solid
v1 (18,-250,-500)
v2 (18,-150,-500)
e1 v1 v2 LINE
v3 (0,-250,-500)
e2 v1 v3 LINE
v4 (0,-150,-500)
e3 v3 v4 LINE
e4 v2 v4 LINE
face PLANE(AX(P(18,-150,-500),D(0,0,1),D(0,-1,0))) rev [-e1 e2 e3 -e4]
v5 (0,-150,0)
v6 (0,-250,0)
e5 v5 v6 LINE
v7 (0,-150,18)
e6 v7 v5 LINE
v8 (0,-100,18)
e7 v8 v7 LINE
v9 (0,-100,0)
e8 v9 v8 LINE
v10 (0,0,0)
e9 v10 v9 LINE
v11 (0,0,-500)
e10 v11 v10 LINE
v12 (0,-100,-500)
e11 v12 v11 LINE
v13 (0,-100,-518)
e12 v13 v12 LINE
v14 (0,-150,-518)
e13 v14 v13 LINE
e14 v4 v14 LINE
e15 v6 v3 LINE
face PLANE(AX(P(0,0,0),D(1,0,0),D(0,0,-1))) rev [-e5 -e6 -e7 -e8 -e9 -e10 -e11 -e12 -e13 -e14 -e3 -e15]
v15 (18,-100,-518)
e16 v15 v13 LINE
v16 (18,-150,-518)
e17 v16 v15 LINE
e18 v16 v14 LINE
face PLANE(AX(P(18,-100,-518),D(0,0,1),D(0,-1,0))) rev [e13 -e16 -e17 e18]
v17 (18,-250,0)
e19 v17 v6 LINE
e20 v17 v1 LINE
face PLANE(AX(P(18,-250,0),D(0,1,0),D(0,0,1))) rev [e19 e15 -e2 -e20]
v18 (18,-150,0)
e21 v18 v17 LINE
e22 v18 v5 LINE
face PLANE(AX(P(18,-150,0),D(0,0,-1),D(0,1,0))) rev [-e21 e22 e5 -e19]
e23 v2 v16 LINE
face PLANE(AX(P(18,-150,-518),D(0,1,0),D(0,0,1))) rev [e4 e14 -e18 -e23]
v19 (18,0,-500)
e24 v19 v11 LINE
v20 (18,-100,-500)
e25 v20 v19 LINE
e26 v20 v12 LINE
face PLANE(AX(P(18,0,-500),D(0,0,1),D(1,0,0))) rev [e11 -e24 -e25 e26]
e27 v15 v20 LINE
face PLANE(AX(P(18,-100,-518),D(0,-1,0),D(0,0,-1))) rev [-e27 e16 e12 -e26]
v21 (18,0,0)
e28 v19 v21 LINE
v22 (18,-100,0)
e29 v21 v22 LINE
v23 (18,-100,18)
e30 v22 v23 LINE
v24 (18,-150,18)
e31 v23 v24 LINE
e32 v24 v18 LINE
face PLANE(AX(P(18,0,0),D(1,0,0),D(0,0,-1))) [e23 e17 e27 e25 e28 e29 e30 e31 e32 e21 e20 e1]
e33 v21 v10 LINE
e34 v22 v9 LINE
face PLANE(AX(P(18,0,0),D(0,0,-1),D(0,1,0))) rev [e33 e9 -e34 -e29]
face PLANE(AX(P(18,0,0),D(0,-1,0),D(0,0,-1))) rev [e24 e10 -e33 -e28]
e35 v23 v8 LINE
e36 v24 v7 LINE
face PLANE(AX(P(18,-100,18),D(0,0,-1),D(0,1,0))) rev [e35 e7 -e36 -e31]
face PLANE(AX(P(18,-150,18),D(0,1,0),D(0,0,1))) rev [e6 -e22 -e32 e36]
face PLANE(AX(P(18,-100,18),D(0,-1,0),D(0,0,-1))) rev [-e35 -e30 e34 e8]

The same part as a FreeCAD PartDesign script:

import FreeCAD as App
import Part
import Sketcher

V = App.Vector
Q = App.Units.Quantity

doc = App.newDocument("Part")
params = doc.addObject("Spreadsheet::Sheet", "Params")
for row, (alias, value) in enumerate([
    ("sketch1_width", "100 mm"),
    ("sketch1_width2", "50 mm"),
    ("sketch1_height", "500 mm"),
    ("sketch1_height2", "18 mm"),
    ("pad1_length", "18 mm"),
], start=1):
    params.set(f"A{row}", alias)
    params.set(f"B{row}", "=" + value)
    params.setAlias(f"B{row}", alias)

body = doc.addObject("PartDesign::Body", "Body")

# Sketch on YZ plane
sketch1 = body.newObject("Sketcher::SketchObject", "Sketch")
sketch1.AttachmentSupport = (doc.getObject("YZ_Plane"), [""])
sketch1.MapMode = "FlatFace"
sketch1.addGeometry(Part.LineSegment(V(0, -500, 0), V(0, 0, 0)), False)
sketch1.addGeometry(Part.LineSegment(V(0, 0, 0), V(-100, 0, 0)), False)
sketch1.addGeometry(Part.LineSegment(V(-100, 0, 0), V(-100, 18, 0)), False)
sketch1.addGeometry(Part.LineSegment(V(-100, 18, 0), V(-150, 18, 0)), False)
sketch1.addGeometry(Part.LineSegment(V(-150, 18, 0), V(-150, 0, 0)), False)
sketch1.addGeometry(Part.LineSegment(V(-150, 0, 0), V(-250, 0, 0)), False)
sketch1.addGeometry(Part.LineSegment(V(-250, 0, 0), V(-250, -500, 0)), False)
sketch1.addGeometry(Part.LineSegment(V(-250, -500, 0), V(-150, -500, 0)), False)
sketch1.addGeometry(Part.LineSegment(V(-150, -500, 0), V(-150, -518, 0)), False)
sketch1.addGeometry(Part.LineSegment(V(-150, -518, 0), V(-100, -518, 0)), False)
sketch1.addGeometry(Part.LineSegment(V(-100, -518, 0), V(-100, -500, 0)), False)
sketch1.addGeometry(Part.LineSegment(V(-100, -500, 0), V(0, -500, 0)), False)
sketch1.addConstraint(Sketcher.Constraint("Coincident", 0, 2, 1, 1))
sketch1.addConstraint(Sketcher.Constraint("Coincident", 1, 2, 2, 1))
sketch1.addConstraint(Sketcher.Constraint("Coincident", 2, 2, 3, 1))
sketch1.addConstraint(Sketcher.Constraint("Coincident", 3, 2, 4, 1))
sketch1.addConstraint(Sketcher.Constraint("Coincident", 4, 2, 5, 1))
sketch1.addConstraint(Sketcher.Constraint("Coincident", 5, 2, 6, 1))
sketch1.addConstraint(Sketcher.Constraint("Coincident", 6, 2, 7, 1))
sketch1.addConstraint(Sketcher.Constraint("Coincident", 7, 2, 8, 1))
sketch1.addConstraint(Sketcher.Constraint("Coincident", 8, 2, 9, 1))
sketch1.addConstraint(Sketcher.Constraint("Coincident", 9, 2, 10, 1))
sketch1.addConstraint(Sketcher.Constraint("Coincident", 10, 2, 11, 1))
sketch1.addConstraint(Sketcher.Constraint("Coincident", 11, 2, 0, 1))
sketch1.addConstraint(Sketcher.Constraint("Vertical", 0))
sketch1.addConstraint(Sketcher.Constraint("Horizontal", 1))
sketch1.addConstraint(Sketcher.Constraint("Vertical", 2))
sketch1.addConstraint(Sketcher.Constraint("Horizontal", 3))
sketch1.addConstraint(Sketcher.Constraint("Vertical", 4))
sketch1.addConstraint(Sketcher.Constraint("Horizontal", 5))
sketch1.addConstraint(Sketcher.Constraint("Vertical", 6))
sketch1.addConstraint(Sketcher.Constraint("Horizontal", 7))
sketch1.addConstraint(Sketcher.Constraint("Vertical", 8))
sketch1.addConstraint(Sketcher.Constraint("Horizontal", 9))
sketch1.addConstraint(Sketcher.Constraint("Vertical", 10))
sketch1.addConstraint(Sketcher.Constraint("Horizontal", 11))
sketch1.addConstraint(Sketcher.Constraint("Coincident", 0, 2, -1, 1))
sketch1.addConstraint(Sketcher.Constraint("PointOnObject", 4, 2, -1))
sketch1.addConstraint(Sketcher.Constraint("Horizontal", 7, 2, 10, 2))
sketch1.addConstraint(Sketcher.Constraint("Vertical", 4, 2, 7, 2))
sketch1.addConstraint(Sketcher.Constraint("Vertical", 2, 2, 9, 2))
sketch1.addConstraint(Sketcher.Constraint("Equal", 1, 5))
sketch1.addConstraint(Sketcher.Constraint("Equal", 4, 8))
sketch1.addConstraint(Sketcher.Constraint("DistanceX", 1, 2, 1, 1, Q("100 mm")))
sketch1.addConstraint(Sketcher.Constraint("DistanceX", 3, 2, 3, 1, Q("50 mm")))
sketch1.addConstraint(Sketcher.Constraint("DistanceY", 0, 1, 0, 2, Q("500 mm")))
sketch1.addConstraint(Sketcher.Constraint("DistanceY", 2, 1, 2, 2, Q("18 mm")))
sketch1.setExpression("Constraints[31]", "Params.sketch1_width")
sketch1.setExpression("Constraints[32]", "Params.sketch1_width2")
sketch1.setExpression("Constraints[33]", "Params.sketch1_height")
sketch1.setExpression("Constraints[34]", "Params.sketch1_height2")
pad1 = body.newObject("PartDesign::Pad", "Pad")
pad1.Profile = sketch1
pad1.setExpression("Length", "Params.pad1_length")

doc.recompute()
